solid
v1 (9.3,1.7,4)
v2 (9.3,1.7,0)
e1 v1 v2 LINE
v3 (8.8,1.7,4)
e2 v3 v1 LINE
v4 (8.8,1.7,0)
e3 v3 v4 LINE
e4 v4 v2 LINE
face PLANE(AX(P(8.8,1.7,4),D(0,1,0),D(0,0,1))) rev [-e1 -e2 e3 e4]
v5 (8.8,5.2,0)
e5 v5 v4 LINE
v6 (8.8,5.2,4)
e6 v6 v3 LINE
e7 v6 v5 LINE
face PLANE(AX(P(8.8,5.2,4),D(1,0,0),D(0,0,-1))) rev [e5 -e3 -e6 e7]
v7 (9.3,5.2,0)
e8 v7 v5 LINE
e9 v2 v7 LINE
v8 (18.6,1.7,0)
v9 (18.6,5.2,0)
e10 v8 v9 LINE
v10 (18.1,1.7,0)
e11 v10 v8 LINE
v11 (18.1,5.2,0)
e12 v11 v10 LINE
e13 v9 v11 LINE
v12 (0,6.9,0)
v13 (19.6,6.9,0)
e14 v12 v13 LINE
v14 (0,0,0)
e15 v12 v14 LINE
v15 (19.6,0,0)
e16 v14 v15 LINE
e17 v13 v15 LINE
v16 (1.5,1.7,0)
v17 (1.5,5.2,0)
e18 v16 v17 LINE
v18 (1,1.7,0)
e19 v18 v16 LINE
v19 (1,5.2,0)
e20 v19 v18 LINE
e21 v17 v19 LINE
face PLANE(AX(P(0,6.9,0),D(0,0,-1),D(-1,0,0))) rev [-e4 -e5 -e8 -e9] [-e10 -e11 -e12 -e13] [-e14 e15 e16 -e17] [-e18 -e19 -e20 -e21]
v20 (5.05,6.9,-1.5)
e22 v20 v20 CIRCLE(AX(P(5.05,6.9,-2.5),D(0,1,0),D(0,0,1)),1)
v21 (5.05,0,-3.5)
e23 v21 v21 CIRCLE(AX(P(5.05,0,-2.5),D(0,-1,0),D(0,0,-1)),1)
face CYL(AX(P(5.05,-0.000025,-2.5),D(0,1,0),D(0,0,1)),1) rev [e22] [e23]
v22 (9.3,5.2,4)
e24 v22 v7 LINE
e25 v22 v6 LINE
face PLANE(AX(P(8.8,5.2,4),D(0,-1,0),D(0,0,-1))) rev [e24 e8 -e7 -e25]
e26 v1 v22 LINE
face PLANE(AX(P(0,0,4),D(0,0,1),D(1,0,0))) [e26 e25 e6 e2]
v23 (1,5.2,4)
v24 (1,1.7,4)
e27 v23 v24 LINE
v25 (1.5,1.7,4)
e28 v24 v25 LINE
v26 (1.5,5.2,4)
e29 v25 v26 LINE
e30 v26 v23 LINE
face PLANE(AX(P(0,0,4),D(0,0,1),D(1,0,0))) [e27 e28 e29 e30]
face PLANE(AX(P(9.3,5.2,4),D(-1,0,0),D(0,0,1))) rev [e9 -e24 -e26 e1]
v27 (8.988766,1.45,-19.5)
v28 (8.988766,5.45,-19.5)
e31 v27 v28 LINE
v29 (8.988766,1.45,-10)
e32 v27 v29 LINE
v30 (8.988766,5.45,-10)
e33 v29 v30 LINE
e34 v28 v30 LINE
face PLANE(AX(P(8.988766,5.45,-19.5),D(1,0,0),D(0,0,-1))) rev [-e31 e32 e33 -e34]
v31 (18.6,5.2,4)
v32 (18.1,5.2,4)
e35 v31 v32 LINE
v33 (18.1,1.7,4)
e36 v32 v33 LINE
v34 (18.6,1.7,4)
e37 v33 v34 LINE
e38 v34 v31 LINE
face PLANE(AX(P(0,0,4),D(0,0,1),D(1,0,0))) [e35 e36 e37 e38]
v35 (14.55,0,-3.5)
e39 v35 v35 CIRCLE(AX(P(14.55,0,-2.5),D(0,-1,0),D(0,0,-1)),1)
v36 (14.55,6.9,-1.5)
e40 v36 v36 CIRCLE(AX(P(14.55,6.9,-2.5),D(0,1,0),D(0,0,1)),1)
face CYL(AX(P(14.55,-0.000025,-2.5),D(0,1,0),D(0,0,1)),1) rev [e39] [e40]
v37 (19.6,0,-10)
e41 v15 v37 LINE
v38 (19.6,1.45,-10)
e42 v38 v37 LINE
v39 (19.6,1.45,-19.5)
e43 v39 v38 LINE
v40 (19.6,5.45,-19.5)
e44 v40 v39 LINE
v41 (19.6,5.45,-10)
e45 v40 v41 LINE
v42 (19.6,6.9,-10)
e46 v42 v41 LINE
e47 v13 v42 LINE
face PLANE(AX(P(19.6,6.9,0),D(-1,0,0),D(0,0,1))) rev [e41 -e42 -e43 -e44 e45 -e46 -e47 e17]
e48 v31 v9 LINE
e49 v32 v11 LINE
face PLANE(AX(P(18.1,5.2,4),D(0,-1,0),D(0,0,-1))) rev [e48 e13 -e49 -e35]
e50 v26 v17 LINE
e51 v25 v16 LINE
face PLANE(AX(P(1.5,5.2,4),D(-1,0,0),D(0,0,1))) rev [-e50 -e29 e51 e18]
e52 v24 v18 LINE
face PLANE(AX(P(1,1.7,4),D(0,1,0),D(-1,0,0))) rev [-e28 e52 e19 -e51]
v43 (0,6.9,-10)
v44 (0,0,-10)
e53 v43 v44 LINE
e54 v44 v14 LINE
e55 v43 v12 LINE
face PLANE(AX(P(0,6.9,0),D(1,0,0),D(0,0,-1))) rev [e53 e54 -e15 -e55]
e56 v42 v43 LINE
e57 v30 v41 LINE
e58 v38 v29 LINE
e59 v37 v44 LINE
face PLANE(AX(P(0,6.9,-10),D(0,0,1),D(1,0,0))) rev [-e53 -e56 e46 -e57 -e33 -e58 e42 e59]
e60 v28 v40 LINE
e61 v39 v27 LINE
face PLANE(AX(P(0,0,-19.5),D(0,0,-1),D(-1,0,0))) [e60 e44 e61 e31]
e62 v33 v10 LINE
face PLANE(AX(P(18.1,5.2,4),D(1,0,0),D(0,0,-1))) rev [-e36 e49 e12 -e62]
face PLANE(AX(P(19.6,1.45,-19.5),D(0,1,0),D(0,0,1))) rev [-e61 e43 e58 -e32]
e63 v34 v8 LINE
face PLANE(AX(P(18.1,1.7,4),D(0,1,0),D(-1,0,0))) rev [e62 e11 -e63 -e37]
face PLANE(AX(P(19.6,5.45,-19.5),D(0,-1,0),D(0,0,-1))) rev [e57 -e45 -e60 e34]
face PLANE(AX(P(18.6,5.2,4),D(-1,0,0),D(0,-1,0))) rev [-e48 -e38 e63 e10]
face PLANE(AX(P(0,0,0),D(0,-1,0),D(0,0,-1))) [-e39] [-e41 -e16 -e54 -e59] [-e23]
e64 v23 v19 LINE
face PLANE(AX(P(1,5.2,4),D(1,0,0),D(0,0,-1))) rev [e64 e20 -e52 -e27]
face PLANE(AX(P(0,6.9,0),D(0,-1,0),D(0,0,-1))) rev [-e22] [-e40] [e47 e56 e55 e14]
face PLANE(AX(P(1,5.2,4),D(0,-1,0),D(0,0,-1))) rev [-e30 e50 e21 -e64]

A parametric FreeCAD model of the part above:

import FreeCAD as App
import Part
import Sketcher
Q = App.Units.Quantity


def add_polygon(sketch, points):
    """Adds a closed chain of lines whose ends are joined by coincident constraints."""
    first, n = sketch.GeometryCount, len(points)
    for a, b in zip(points, points[1:] + points[:1]):
        sketch.addGeometry(Part.LineSegment(App.Vector(*a, 0), App.Vector(*b, 0)), False)
    for i in range(n):
        sketch.addConstraint(Sketcher.Constraint("Coincident", first + i, 2, first + (i + 1) % n, 1))

doc = App.newDocument("Part")
body = doc.addObject("PartDesign::Body", "Body")

# Sketch on XZ plane
sketch1 = body.newObject("Sketcher::SketchObject", "Sketch")
sketch1.AttachmentSupport = (doc.getObject("XZ_Plane"), [""])
sketch1.MapMode = "FlatFace"
add_polygon(sketch1, [(0, -10), (0, 0), (20, 0), (20, -10)])  # lines 0-3
sketch1.addConstraint(Sketcher.Constraint("Vertical", 0))
sketch1.addConstraint(Sketcher.Constraint("Horizontal", 1))
sketch1.addConstraint(Sketcher.Constraint("Vertical", 2))
sketch1.addConstraint(Sketcher.Constraint("Horizontal", 3))
sketch1.addConstraint(Sketcher.Constraint("Coincident", 0, 2, -1, 1))
sketch1.addConstraint(Sketcher.Constraint("DistanceY", 0, 1, 0, 2, Q("10 mm")))
sketch1.addConstraint(Sketcher.Constraint("DistanceX", 1, 1, 1, 2, Q("19.6 mm")))
pad1 = body.newObject("PartDesign::Pad", "Pad")
pad1.Profile = sketch1
pad1.Length = 6.9
pad1.Reversed = True

# Sketch on XY plane
sketch2 = body.newObject("Sketcher::SketchObject", "Sketch001")
sketch2.AttachmentSupport = (doc.getObject("XY_Plane"), [""])
sketch2.MapMode = "FlatFace"
add_polygon(sketch2, [(1, 5.2), (1, 1.7), (1.5, 1.7), (1.5, 5.2)])  # lines 0-3
add_polygon(sketch2, [(8.8, 5.2), (8.8, 1.7), (9.3, 1.7), (9.3, 5.2)])  # lines 4-7
add_polygon(sketch2, [(18.1, 5.2), (18.1, 1.7), (18.6, 1.7), (18.6, 5.2)])  # lines 8-11
sketch2.addConstraint(Sketcher.Constraint("Vertical", 0))
sketch2.addConstraint(Sketcher.Constraint("Horizontal", 1))
sketch2.addConstraint(Sketcher.Constraint("Vertical", 2))
sketch2.addConstraint(Sketcher.Constraint("Horizontal", 3))
sketch2.addConstraint(Sketcher.Constraint("Vertical", 4))
sketch2.addConstraint(Sketcher.Constraint("Horizontal", 5))
sketch2.addConstraint(Sketcher.Constraint("Vertical", 6))
sketch2.addConstraint(Sketcher.Constraint("Horizontal", 7))
sketch2.addConstraint(Sketcher.Constraint("Vertical", 8))
sketch2.addConstraint(Sketcher.Constraint("Horizontal", 9))
sketch2.addConstraint(Sketcher.Constraint("Vertical", 10))
sketch2.addConstraint(Sketcher.Constraint("Horizontal", 11))
sketch2.addConstraint(Sketcher.Constraint("Horizontal", 1, 2, 4, 2))
sketch2.addConstraint(Sketcher.Constraint("Horizontal", 3, 2, 6, 2))
sketch2.addConstraint(Sketcher.Constraint("Horizontal", 5, 2, 8, 2))
sketch2.addConstraint(Sketcher.Constraint("Horizontal", 7, 2, 10, 2))
sketch2.addConstraint(Sketcher.Constraint("Equal", 3, 5))
sketch2.addConstraint(Sketcher.Constraint("Equal", 7, 9))
sketch2.addConstraint(Sketcher.Constraint("DistanceX", 1, 1, 1, 2, Q("0.5 mm")))
sketch2.addConstraint(Sketcher.Constraint("DistanceY", 0, 2, 0, 1, Q("3.5 mm")))
sketch2.addConstraint(Sketcher.Constraint("DistanceX", -1, 1, 0, 2, Q("1 mm")))
sketch2.addConstraint(Sketcher.Constraint("DistanceY", -1, 1, 0, 2, Q("1.7 mm")))
sketch2.addConstraint(Sketcher.Constraint("DistanceX", -1, 1, 4, 2, Q("8.8 mm")))
sketch2.addConstraint(Sketcher.Constraint("DistanceX", -1, 1, 8, 2, Q("18.1 mm")))
pad2 = body.newObject("PartDesign::Pad", "Pad001")
pad2.Profile = sketch2
pad2.Length = 4

# Sketch on XY plane
sketch3 = body.newObject("Sketcher::SketchObject", "Sketch002")
sketch3.AttachmentSupport = (doc.getObject("XY_Plane"), [""])
sketch3.MapMode = "FlatFace"
sketch3.AttachmentOffset = App.Placement(App.Vector(0, 0, -10), App.Rotation())
add_polygon(sketch3, [(19.6, 5.5), (19.6, 1.4), (9, 1.4), (9, 5.5)])  # lines 0-3
sketch3.addConstraint(Sketcher.Constraint("Vertical", 0))
sketch3.addConstraint(Sketcher.Constraint("Horizontal", 1))
sketch3.addConstraint(Sketcher.Constraint("Vertical", 2))
sketch3.addConstraint(Sketcher.Constraint("Horizontal", 3))
sketch3.addConstraint(Sketcher.Constraint("DistanceY", 0, 2, 0, 1, Q("4 mm")))
sketch3.addConstraint(Sketcher.Constraint("DistanceX", -1, 1, 0, 2, Q("19.6 mm")))
sketch3.addConstraint(Sketcher.Constraint("DistanceY", -1, 1, 0, 2, Q("1.45 mm")))
sketch3.addConstraint(Sketcher.Constraint("DistanceX", 1, 2, 1, 1, Q("10.611234 mm")))
pad3 = body.newObject("PartDesign::Pad", "Pad002")
pad3.Profile = sketch3
pad3.Length = 9.5
pad3.Reversed = True

# Sketch on XZ plane
sketch4 = body.newObject("Sketcher::SketchObject", "Sketch003")
sketch4.AttachmentSupport = (doc.getObject("XZ_Plane"), [""])
sketch4.MapMode = "FlatFace"
sketch4.AttachmentOffset = App.Placement(App.Vector(0, 0, -6.9), App.Rotation())
sketch4.addGeometry(Part.Circle(App.Vector(5, -2.5, 0), App.Vector(0, 0, 1), 1), False)
sketch4.addGeometry(Part.Circle(App.Vector(14.6, -2.5, 0), App.Vector(0, 0, 1), 1), False)
sketch4.addConstraint(Sketcher.Constraint("Equal", 0, 1))
sketch4.addConstraint(Sketcher.Constraint("Horizontal", 0, 3, 1, 3))
sketch4.addConstraint(Sketcher.Constraint("Diameter", 0, Q("2 mm")))
sketch4.addConstraint(Sketcher.Constraint("DistanceY", 0, 3, -1, 1, Q("2.5 mm")))
sketch4.addConstraint(Sketcher.Constraint("DistanceX", 0, 3, 1, 3, Q("9.5 mm")))
sketch4.addConstraint(Sketcher.Constraint("DistanceX", -1, 1, 0, 3, Q("5.05 mm")))
pocket1 = body.newObject("PartDesign::Pocket", "Pocket")
pocket1.Profile = sketch4
pocket1.Type = "ThroughAll"
pocket1.Reversed = True

doc.recompute()
